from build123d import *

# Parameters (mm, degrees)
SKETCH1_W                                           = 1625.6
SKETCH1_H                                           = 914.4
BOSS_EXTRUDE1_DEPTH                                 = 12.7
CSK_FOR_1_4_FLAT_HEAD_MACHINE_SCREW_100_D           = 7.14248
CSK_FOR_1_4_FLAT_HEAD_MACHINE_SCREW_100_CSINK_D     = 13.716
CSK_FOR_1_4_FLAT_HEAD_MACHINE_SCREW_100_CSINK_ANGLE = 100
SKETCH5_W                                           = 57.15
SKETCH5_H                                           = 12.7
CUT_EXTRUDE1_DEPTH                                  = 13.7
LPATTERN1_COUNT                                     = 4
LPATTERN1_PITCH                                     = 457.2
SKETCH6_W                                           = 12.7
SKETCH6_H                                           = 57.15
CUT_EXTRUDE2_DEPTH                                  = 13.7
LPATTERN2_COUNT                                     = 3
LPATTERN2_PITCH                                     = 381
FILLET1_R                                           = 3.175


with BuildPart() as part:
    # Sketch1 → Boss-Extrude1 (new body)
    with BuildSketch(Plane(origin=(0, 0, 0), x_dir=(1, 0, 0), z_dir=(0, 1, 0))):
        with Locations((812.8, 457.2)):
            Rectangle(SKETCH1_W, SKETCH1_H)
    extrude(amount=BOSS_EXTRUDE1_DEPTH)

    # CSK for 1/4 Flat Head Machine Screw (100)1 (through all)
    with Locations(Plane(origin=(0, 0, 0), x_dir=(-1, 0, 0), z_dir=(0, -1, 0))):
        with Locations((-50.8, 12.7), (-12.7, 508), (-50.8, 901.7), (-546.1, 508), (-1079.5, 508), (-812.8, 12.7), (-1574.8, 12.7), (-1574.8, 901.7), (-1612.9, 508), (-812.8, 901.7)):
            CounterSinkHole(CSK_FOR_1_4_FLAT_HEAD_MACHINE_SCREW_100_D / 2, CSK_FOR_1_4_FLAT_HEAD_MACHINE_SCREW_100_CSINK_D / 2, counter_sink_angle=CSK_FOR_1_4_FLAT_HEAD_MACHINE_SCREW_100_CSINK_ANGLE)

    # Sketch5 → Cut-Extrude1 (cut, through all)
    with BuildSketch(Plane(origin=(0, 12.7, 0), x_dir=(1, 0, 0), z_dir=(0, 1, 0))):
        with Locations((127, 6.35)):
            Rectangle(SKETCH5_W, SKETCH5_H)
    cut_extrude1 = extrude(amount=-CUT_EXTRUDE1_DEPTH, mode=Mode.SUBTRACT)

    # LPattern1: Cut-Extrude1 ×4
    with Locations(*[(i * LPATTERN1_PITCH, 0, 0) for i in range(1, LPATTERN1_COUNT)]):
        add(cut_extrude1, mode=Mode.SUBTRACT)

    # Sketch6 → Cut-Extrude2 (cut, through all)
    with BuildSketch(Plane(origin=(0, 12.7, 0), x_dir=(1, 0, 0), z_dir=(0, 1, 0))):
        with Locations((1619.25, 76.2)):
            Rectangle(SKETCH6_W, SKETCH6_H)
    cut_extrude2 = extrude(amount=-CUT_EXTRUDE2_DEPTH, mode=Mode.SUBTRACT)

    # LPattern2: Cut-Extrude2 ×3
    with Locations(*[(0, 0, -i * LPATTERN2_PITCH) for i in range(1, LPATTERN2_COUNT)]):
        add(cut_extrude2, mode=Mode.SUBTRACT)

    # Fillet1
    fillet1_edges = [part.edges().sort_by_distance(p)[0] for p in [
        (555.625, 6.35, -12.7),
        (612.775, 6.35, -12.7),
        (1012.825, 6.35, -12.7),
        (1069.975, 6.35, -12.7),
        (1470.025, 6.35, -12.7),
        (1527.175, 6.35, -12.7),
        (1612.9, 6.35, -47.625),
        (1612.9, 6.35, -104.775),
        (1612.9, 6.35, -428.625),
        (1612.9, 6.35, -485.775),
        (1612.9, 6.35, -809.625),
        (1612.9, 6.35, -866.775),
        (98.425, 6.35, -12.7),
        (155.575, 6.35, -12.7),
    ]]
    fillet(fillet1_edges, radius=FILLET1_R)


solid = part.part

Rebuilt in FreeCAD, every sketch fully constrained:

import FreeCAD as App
import Part
import Sketcher

V = App.Vector
Q = App.Units.Quantity


def edges_at(feature, points):
    """Names of the edges that pass closest to the given points."""
    edges = feature.Shape.Edges
    near = lambda p: min(range(len(edges)), key=lambda i: edges[i].distToShape(Part.Vertex(*p))[0])
    return sorted({f"Edge{near(p) + 1}" for p in points})

doc = App.newDocument("Part")
body = doc.addObject("PartDesign::Body", "Body")

sketch1 = doc.addObject("Sketcher::SketchObject", "Sketch")
body.addObject(sketch1)
sketch1.AttachmentSupport = (doc.XZ_Plane, [""])
sketch1.MapMode = "FlatFace"
sketch1.addGeometry(Part.LineSegment(V(0, -914, 0), V(0, 0, 0)), False)
sketch1.addGeometry(Part.LineSegment(V(0, 0, 0), V(1626, 0, 0)), False)
sketch1.addGeometry(Part.LineSegment(V(1626, 0, 0), V(1626, -914, 0)), False)
sketch1.addGeometry(Part.LineSegment(V(1626, -914, 0), V(0, -914, 0)), False)
sketch1.addConstraint(Sketcher.Constraint("Coincident", 0, 2, 1, 1))
sketch1.addConstraint(Sketcher.Constraint("Coincident", 1, 2, 2, 1))
sketch1.addConstraint(Sketcher.Constraint("Coincident", 2, 2, 3, 1))
sketch1.addConstraint(Sketcher.Constraint("Coincident", 3, 2, 0, 1))
sketch1.addConstraint(Sketcher.Constraint("Vertical", 0))
sketch1.addConstraint(Sketcher.Constraint("Horizontal", 1))
sketch1.addConstraint(Sketcher.Constraint("Vertical", 2))
sketch1.addConstraint(Sketcher.Constraint("Horizontal", 3))
sketch1.addConstraint(Sketcher.Constraint("Coincident", 0, 2, -1, 1))
sketch1.addConstraint(Sketcher.Constraint("DistanceX", 1, 1, 1, 2, Q("64 in")))
sketch1.addConstraint(Sketcher.Constraint("DistanceY", 0, 1, 0, 2, Q("36 in")))
pad1 = doc.addObject("PartDesign::Pad", "Pad")
body.addObject(pad1)
pad1.Profile = sketch1
pad1.Length = Q("0.5 in")
pad1.Reversed = True

sketch2 = doc.addObject("Sketcher::SketchObject", "Sketch001")
body.addObject(sketch2)
sketch2.AttachmentSupport = (doc.XZ_Plane, [""])
sketch2.MapMode = "FlatFace"
sketch2.addGeometry(Part.Circle(V(50.8, -12.7, 0), V(0, 0, 1), 3.6), False)
sketch2.addGeometry(Part.Circle(V(12.7, -508, 0), V(0, 0, 1), 3.6), False)
sketch2.addGeometry(Part.Circle(V(50.8, -901.7, 0), V(0, 0, 1), 3.6), False)
sketch2.addGeometry(Part.Circle(V(546.1, -508, 0), V(0, 0, 1), 3.6), False)
sketch2.addGeometry(Part.Circle(V(1079.5, -508, 0), V(0, 0, 1), 3.6), False)
sketch2.addGeometry(Part.Circle(V(812.8, -12.7, 0), V(0, 0, 1), 3.6), False)
sketch2.addGeometry(Part.Circle(V(1574.8, -12.7, 0), V(0, 0, 1), 3.6), False)
sketch2.addGeometry(Part.Circle(V(1574.8, -901.7, 0), V(0, 0, 1), 3.6), False)
sketch2.addGeometry(Part.Circle(V(1612.9, -508, 0), V(0, 0, 1), 3.6), False)
sketch2.addGeometry(Part.Circle(V(812.8, -901.7, 0), V(0, 0, 1), 3.6), False)
sketch2.addConstraint(Sketcher.Constraint("Equal", 0, 1))
sketch2.addConstraint(Sketcher.Constraint("Equal", 1, 2))
sketch2.addConstraint(Sketcher.Constraint("Equal", 2, 3))
sketch2.addConstraint(Sketcher.Constraint("Equal", 3, 4))
sketch2.addConstraint(Sketcher.Constraint("Equal", 4, 5))
sketch2.addConstraint(Sketcher.Constraint("Equal", 5, 6))
sketch2.addConstraint(Sketcher.Constraint("Equal", 6, 7))
sketch2.addConstraint(Sketcher.Constraint("Equal", 7, 8))
sketch2.addConstraint(Sketcher.Constraint("Equal", 8, 9))
sketch2.addConstraint(Sketcher.Constraint("Horizontal", 1, 3, 3, 3))
sketch2.addConstraint(Sketcher.Constraint("Horizontal", 3, 3, 4, 3))
sketch2.addConstraint(Sketcher.Constraint("Horizontal", 0, 3, 5, 3))
sketch2.addConstraint(Sketcher.Constraint("Horizontal", 5, 3, 6, 3))
sketch2.addConstraint(Sketcher.Constraint("Horizontal", 2, 3, 7, 3))
sketch2.addConstraint(Sketcher.Constraint("Horizontal", 4, 3, 8, 3))
sketch2.addConstraint(Sketcher.Constraint("Horizontal", 7, 3, 9, 3))
sketch2.addConstraint(Sketcher.Constraint("Vertical", 0, 3, 2, 3))
sketch2.addConstraint(Sketcher.Constraint("Vertical", 6, 3, 7, 3))
sketch2.addConstraint(Sketcher.Constraint("Vertical", 5, 3, 9, 3))
sketch2.addConstraint(Sketcher.Constraint("DistanceX", -1, 1, 0, 3, Q("2 in")))
sketch2.addConstraint(Sketcher.Constraint("DistanceY", 1, 3, -1, 1, Q("20 in")))
sketch2.addConstraint(Sketcher.Constraint("DistanceX", -1, 1, 5, 3, Q("32 in")))
sketch2.addConstraint(Sketcher.Constraint("DistanceX", -1, 1, 6, 3, Q("62 in")))
sketch2.addConstraint(Sketcher.Constraint("DistanceY", 2, 3, 0, 3, Q("35 in")))
sketch2.addConstraint(Sketcher.Constraint("DistanceX", 1, 3, 3, 3, Q("21 in")))
sketch2.addConstraint(Sketcher.Constraint("DistanceX", 3, 3, 4, 3, Q("21 in")))
sketch2.addConstraint(Sketcher.Constraint("DistanceX", 4, 3, 8, 3, Q("21 in")))
sketch2.addConstraint(Sketcher.Constraint("Diameter", 0, Q("0.2812 in")))
sketch2.addConstraint(Sketcher.Constraint("DistanceY", 0, 3, -1, 1, Q("0.5 in")))
sketch2.addConstraint(Sketcher.Constraint("DistanceX", -1, 1, 1, 3, Q("0.5 in")))
doc.recompute()
hole = doc.addObject("PartDesign::Hole", "Hole")
body.addObject(hole)
hole.Profile = sketch2
hole.ThreadType = "None"
hole.Diameter = Q("0.2812 in")
hole.DepthType = "ThroughAll"
hole.HoleCutType = "Countersink"
hole.HoleCutDiameter = Q("0.54 in")
hole.HoleCutCountersinkAngle = 100

sketch3 = doc.addObject("Sketcher::SketchObject", "Sketch002")
body.addObject(sketch3)
sketch3.AttachmentSupport = (doc.XZ_Plane, [""])
sketch3.MapMode = "FlatFace"
sketch3.AttachmentOffset = App.Placement(V(0, 0, -0.5 * 25.4), App.Rotation())
sketch3.addGeometry(Part.LineSegment(V(98, -13, 0), V(98, 0, 0)), False)
sketch3.addGeometry(Part.LineSegment(V(98, 0, 0), V(156, 0, 0)), False)
sketch3.addGeometry(Part.LineSegment(V(156, 0, 0), V(156, -13, 0)), False)
sketch3.addGeometry(Part.LineSegment(V(156, -13, 0), V(98, -13, 0)), False)
sketch3.addConstraint(Sketcher.Constraint("Coincident", 0, 2, 1, 1))
sketch3.addConstraint(Sketcher.Constraint("Coincident", 1, 2, 2, 1))
sketch3.addConstraint(Sketcher.Constraint("Coincident", 2, 2, 3, 1))
sketch3.addConstraint(Sketcher.Constraint("Coincident", 3, 2, 0, 1))
sketch3.addConstraint(Sketcher.Constraint("Vertical", 0))
sketch3.addConstraint(Sketcher.Constraint("Horizontal", 1))
sketch3.addConstraint(Sketcher.Constraint("Vertical", 2))
sketch3.addConstraint(Sketcher.Constraint("Horizontal", 3))
sketch3.addConstraint(Sketcher.Constraint("PointOnObject", 0, 2, -1))
sketch3.addConstraint(Sketcher.Constraint("DistanceY", 0, 1, 0, 2, Q("0.5 in")))
sketch3.addConstraint(Sketcher.Constraint("DistanceX", 1, 1, 1, 2, Q("2.25 in")))
sketch3.addConstraint(Sketcher.Constraint("DistanceX", -1, 1, 0, 2, Q("3.875 in")))
pocket1 = doc.addObject("PartDesign::Pocket", "Pocket")
body.addObject(pocket1)
pocket1.Profile = sketch3
pocket1.Type = "ThroughAll"
pocket1.Reversed = True
doc.recompute()

linearpattern = doc.addObject("PartDesign::LinearPattern", "LinearPattern")
body.addObject(linearpattern)
linearpattern.Originals = [pocket1]
linearpattern.Direction = (doc.X_Axis, [""])
linearpattern.Mode = "offset"
linearpattern.Offset = Q("18 in")
linearpattern.Occurrences = 4
body.Tip = linearpattern

sketch4 = doc.addObject("Sketcher::SketchObject", "Sketch003")
body.addObject(sketch4)
sketch4.AttachmentSupport = (doc.XZ_Plane, [""])
sketch4.MapMode = "FlatFace"
sketch4.AttachmentOffset = App.Placement(V(0, 0, -0.5 * 25.4), App.Rotation())
sketch4.addGeometry(Part.LineSegment(V(1613, -105, 0), V(1613, -48, 0)), False)
sketch4.addGeometry(Part.LineSegment(V(1613, -48, 0), V(1626, -48, 0)), False)
sketch4.addGeometry(Part.LineSegment(V(1626, -48, 0), V(1626, -105, 0)), False)
sketch4.addGeometry(Part.LineSegment(V(1626, -105, 0), V(1613, -105, 0)), False)
sketch4.addConstraint(Sketcher.Constraint("Coincident", 0, 2, 1, 1))
sketch4.addConstraint(Sketcher.Constraint("Coincident", 1, 2, 2, 1))
sketch4.addConstraint(Sketcher.Constraint("Coincident", 2, 2, 3, 1))
sketch4.addConstraint(Sketcher.Constraint("Coincident", 3, 2, 0, 1))
sketch4.addConstraint(Sketcher.Constraint("Vertical", 0))
sketch4.addConstraint(Sketcher.Constraint("Horizontal", 1))
sketch4.addConstraint(Sketcher.Constraint("Vertical", 2))
sketch4.addConstraint(Sketcher.Constraint("Horizontal", 3))
sketch4.addConstraint(Sketcher.Constraint("DistanceX", 1, 1, 1, 2, Q("0.5 in")))
sketch4.addConstraint(Sketcher.Constraint("DistanceX", -1, 1, 1, 2, Q("64 in")))
sketch4.addConstraint(Sketcher.Constraint("DistanceY", 0, 1, 0, 2, Q("2.25 in")))
sketch4.addConstraint(Sketcher.Constraint("DistanceY", 0, 2, -1, 1, Q("1.875 in")))
pocket2 = doc.addObject("PartDesign::Pocket", "Pocket001")
body.addObject(pocket2)
pocket2.Profile = sketch4
pocket2.Type = "ThroughAll"
pocket2.Reversed = True
doc.recompute()

linearpattern2 = doc.addObject("PartDesign::LinearPattern", "LinearPattern001")
body.addObject(linearpattern2)
linearpattern2.Originals = [pocket2]
linearpattern2.Direction = (doc.Z_Axis, [""])
linearpattern2.Mode = "offset"
linearpattern2.Offset = Q("15 in")
linearpattern2.Occurrences = 3
linearpattern2.Reversed = True
body.Tip = linearpattern2
doc.recompute()

fillet = doc.addObject("PartDesign::Fillet", "Fillet")
body.addObject(fillet)
fillet.Base = (linearpattern2, edges_at(linearpattern2, [
    (555.625, 6.35, -12.7),
    (612.775, 6.35, -12.7),
    (1012.825, 6.35, -12.7),
    (1069.975, 6.35, -12.7),
    (1470.025, 6.35, -12.7),
    (1527.175, 6.35, -12.7),
    (1612.9, 6.35, -47.625),
    (1612.9, 6.35, -104.775),
    (1612.9, 6.35, -428.625),
    (1612.9, 6.35, -485.775),
    (1612.9, 6.35, -809.625),
    (1612.9, 6.35, -866.775),
    (98.425, 6.35, -12.7),
    (155.575, 6.35, -12.7),
]))
fillet.Radius = Q("0.125 in")

doc.recompute()
